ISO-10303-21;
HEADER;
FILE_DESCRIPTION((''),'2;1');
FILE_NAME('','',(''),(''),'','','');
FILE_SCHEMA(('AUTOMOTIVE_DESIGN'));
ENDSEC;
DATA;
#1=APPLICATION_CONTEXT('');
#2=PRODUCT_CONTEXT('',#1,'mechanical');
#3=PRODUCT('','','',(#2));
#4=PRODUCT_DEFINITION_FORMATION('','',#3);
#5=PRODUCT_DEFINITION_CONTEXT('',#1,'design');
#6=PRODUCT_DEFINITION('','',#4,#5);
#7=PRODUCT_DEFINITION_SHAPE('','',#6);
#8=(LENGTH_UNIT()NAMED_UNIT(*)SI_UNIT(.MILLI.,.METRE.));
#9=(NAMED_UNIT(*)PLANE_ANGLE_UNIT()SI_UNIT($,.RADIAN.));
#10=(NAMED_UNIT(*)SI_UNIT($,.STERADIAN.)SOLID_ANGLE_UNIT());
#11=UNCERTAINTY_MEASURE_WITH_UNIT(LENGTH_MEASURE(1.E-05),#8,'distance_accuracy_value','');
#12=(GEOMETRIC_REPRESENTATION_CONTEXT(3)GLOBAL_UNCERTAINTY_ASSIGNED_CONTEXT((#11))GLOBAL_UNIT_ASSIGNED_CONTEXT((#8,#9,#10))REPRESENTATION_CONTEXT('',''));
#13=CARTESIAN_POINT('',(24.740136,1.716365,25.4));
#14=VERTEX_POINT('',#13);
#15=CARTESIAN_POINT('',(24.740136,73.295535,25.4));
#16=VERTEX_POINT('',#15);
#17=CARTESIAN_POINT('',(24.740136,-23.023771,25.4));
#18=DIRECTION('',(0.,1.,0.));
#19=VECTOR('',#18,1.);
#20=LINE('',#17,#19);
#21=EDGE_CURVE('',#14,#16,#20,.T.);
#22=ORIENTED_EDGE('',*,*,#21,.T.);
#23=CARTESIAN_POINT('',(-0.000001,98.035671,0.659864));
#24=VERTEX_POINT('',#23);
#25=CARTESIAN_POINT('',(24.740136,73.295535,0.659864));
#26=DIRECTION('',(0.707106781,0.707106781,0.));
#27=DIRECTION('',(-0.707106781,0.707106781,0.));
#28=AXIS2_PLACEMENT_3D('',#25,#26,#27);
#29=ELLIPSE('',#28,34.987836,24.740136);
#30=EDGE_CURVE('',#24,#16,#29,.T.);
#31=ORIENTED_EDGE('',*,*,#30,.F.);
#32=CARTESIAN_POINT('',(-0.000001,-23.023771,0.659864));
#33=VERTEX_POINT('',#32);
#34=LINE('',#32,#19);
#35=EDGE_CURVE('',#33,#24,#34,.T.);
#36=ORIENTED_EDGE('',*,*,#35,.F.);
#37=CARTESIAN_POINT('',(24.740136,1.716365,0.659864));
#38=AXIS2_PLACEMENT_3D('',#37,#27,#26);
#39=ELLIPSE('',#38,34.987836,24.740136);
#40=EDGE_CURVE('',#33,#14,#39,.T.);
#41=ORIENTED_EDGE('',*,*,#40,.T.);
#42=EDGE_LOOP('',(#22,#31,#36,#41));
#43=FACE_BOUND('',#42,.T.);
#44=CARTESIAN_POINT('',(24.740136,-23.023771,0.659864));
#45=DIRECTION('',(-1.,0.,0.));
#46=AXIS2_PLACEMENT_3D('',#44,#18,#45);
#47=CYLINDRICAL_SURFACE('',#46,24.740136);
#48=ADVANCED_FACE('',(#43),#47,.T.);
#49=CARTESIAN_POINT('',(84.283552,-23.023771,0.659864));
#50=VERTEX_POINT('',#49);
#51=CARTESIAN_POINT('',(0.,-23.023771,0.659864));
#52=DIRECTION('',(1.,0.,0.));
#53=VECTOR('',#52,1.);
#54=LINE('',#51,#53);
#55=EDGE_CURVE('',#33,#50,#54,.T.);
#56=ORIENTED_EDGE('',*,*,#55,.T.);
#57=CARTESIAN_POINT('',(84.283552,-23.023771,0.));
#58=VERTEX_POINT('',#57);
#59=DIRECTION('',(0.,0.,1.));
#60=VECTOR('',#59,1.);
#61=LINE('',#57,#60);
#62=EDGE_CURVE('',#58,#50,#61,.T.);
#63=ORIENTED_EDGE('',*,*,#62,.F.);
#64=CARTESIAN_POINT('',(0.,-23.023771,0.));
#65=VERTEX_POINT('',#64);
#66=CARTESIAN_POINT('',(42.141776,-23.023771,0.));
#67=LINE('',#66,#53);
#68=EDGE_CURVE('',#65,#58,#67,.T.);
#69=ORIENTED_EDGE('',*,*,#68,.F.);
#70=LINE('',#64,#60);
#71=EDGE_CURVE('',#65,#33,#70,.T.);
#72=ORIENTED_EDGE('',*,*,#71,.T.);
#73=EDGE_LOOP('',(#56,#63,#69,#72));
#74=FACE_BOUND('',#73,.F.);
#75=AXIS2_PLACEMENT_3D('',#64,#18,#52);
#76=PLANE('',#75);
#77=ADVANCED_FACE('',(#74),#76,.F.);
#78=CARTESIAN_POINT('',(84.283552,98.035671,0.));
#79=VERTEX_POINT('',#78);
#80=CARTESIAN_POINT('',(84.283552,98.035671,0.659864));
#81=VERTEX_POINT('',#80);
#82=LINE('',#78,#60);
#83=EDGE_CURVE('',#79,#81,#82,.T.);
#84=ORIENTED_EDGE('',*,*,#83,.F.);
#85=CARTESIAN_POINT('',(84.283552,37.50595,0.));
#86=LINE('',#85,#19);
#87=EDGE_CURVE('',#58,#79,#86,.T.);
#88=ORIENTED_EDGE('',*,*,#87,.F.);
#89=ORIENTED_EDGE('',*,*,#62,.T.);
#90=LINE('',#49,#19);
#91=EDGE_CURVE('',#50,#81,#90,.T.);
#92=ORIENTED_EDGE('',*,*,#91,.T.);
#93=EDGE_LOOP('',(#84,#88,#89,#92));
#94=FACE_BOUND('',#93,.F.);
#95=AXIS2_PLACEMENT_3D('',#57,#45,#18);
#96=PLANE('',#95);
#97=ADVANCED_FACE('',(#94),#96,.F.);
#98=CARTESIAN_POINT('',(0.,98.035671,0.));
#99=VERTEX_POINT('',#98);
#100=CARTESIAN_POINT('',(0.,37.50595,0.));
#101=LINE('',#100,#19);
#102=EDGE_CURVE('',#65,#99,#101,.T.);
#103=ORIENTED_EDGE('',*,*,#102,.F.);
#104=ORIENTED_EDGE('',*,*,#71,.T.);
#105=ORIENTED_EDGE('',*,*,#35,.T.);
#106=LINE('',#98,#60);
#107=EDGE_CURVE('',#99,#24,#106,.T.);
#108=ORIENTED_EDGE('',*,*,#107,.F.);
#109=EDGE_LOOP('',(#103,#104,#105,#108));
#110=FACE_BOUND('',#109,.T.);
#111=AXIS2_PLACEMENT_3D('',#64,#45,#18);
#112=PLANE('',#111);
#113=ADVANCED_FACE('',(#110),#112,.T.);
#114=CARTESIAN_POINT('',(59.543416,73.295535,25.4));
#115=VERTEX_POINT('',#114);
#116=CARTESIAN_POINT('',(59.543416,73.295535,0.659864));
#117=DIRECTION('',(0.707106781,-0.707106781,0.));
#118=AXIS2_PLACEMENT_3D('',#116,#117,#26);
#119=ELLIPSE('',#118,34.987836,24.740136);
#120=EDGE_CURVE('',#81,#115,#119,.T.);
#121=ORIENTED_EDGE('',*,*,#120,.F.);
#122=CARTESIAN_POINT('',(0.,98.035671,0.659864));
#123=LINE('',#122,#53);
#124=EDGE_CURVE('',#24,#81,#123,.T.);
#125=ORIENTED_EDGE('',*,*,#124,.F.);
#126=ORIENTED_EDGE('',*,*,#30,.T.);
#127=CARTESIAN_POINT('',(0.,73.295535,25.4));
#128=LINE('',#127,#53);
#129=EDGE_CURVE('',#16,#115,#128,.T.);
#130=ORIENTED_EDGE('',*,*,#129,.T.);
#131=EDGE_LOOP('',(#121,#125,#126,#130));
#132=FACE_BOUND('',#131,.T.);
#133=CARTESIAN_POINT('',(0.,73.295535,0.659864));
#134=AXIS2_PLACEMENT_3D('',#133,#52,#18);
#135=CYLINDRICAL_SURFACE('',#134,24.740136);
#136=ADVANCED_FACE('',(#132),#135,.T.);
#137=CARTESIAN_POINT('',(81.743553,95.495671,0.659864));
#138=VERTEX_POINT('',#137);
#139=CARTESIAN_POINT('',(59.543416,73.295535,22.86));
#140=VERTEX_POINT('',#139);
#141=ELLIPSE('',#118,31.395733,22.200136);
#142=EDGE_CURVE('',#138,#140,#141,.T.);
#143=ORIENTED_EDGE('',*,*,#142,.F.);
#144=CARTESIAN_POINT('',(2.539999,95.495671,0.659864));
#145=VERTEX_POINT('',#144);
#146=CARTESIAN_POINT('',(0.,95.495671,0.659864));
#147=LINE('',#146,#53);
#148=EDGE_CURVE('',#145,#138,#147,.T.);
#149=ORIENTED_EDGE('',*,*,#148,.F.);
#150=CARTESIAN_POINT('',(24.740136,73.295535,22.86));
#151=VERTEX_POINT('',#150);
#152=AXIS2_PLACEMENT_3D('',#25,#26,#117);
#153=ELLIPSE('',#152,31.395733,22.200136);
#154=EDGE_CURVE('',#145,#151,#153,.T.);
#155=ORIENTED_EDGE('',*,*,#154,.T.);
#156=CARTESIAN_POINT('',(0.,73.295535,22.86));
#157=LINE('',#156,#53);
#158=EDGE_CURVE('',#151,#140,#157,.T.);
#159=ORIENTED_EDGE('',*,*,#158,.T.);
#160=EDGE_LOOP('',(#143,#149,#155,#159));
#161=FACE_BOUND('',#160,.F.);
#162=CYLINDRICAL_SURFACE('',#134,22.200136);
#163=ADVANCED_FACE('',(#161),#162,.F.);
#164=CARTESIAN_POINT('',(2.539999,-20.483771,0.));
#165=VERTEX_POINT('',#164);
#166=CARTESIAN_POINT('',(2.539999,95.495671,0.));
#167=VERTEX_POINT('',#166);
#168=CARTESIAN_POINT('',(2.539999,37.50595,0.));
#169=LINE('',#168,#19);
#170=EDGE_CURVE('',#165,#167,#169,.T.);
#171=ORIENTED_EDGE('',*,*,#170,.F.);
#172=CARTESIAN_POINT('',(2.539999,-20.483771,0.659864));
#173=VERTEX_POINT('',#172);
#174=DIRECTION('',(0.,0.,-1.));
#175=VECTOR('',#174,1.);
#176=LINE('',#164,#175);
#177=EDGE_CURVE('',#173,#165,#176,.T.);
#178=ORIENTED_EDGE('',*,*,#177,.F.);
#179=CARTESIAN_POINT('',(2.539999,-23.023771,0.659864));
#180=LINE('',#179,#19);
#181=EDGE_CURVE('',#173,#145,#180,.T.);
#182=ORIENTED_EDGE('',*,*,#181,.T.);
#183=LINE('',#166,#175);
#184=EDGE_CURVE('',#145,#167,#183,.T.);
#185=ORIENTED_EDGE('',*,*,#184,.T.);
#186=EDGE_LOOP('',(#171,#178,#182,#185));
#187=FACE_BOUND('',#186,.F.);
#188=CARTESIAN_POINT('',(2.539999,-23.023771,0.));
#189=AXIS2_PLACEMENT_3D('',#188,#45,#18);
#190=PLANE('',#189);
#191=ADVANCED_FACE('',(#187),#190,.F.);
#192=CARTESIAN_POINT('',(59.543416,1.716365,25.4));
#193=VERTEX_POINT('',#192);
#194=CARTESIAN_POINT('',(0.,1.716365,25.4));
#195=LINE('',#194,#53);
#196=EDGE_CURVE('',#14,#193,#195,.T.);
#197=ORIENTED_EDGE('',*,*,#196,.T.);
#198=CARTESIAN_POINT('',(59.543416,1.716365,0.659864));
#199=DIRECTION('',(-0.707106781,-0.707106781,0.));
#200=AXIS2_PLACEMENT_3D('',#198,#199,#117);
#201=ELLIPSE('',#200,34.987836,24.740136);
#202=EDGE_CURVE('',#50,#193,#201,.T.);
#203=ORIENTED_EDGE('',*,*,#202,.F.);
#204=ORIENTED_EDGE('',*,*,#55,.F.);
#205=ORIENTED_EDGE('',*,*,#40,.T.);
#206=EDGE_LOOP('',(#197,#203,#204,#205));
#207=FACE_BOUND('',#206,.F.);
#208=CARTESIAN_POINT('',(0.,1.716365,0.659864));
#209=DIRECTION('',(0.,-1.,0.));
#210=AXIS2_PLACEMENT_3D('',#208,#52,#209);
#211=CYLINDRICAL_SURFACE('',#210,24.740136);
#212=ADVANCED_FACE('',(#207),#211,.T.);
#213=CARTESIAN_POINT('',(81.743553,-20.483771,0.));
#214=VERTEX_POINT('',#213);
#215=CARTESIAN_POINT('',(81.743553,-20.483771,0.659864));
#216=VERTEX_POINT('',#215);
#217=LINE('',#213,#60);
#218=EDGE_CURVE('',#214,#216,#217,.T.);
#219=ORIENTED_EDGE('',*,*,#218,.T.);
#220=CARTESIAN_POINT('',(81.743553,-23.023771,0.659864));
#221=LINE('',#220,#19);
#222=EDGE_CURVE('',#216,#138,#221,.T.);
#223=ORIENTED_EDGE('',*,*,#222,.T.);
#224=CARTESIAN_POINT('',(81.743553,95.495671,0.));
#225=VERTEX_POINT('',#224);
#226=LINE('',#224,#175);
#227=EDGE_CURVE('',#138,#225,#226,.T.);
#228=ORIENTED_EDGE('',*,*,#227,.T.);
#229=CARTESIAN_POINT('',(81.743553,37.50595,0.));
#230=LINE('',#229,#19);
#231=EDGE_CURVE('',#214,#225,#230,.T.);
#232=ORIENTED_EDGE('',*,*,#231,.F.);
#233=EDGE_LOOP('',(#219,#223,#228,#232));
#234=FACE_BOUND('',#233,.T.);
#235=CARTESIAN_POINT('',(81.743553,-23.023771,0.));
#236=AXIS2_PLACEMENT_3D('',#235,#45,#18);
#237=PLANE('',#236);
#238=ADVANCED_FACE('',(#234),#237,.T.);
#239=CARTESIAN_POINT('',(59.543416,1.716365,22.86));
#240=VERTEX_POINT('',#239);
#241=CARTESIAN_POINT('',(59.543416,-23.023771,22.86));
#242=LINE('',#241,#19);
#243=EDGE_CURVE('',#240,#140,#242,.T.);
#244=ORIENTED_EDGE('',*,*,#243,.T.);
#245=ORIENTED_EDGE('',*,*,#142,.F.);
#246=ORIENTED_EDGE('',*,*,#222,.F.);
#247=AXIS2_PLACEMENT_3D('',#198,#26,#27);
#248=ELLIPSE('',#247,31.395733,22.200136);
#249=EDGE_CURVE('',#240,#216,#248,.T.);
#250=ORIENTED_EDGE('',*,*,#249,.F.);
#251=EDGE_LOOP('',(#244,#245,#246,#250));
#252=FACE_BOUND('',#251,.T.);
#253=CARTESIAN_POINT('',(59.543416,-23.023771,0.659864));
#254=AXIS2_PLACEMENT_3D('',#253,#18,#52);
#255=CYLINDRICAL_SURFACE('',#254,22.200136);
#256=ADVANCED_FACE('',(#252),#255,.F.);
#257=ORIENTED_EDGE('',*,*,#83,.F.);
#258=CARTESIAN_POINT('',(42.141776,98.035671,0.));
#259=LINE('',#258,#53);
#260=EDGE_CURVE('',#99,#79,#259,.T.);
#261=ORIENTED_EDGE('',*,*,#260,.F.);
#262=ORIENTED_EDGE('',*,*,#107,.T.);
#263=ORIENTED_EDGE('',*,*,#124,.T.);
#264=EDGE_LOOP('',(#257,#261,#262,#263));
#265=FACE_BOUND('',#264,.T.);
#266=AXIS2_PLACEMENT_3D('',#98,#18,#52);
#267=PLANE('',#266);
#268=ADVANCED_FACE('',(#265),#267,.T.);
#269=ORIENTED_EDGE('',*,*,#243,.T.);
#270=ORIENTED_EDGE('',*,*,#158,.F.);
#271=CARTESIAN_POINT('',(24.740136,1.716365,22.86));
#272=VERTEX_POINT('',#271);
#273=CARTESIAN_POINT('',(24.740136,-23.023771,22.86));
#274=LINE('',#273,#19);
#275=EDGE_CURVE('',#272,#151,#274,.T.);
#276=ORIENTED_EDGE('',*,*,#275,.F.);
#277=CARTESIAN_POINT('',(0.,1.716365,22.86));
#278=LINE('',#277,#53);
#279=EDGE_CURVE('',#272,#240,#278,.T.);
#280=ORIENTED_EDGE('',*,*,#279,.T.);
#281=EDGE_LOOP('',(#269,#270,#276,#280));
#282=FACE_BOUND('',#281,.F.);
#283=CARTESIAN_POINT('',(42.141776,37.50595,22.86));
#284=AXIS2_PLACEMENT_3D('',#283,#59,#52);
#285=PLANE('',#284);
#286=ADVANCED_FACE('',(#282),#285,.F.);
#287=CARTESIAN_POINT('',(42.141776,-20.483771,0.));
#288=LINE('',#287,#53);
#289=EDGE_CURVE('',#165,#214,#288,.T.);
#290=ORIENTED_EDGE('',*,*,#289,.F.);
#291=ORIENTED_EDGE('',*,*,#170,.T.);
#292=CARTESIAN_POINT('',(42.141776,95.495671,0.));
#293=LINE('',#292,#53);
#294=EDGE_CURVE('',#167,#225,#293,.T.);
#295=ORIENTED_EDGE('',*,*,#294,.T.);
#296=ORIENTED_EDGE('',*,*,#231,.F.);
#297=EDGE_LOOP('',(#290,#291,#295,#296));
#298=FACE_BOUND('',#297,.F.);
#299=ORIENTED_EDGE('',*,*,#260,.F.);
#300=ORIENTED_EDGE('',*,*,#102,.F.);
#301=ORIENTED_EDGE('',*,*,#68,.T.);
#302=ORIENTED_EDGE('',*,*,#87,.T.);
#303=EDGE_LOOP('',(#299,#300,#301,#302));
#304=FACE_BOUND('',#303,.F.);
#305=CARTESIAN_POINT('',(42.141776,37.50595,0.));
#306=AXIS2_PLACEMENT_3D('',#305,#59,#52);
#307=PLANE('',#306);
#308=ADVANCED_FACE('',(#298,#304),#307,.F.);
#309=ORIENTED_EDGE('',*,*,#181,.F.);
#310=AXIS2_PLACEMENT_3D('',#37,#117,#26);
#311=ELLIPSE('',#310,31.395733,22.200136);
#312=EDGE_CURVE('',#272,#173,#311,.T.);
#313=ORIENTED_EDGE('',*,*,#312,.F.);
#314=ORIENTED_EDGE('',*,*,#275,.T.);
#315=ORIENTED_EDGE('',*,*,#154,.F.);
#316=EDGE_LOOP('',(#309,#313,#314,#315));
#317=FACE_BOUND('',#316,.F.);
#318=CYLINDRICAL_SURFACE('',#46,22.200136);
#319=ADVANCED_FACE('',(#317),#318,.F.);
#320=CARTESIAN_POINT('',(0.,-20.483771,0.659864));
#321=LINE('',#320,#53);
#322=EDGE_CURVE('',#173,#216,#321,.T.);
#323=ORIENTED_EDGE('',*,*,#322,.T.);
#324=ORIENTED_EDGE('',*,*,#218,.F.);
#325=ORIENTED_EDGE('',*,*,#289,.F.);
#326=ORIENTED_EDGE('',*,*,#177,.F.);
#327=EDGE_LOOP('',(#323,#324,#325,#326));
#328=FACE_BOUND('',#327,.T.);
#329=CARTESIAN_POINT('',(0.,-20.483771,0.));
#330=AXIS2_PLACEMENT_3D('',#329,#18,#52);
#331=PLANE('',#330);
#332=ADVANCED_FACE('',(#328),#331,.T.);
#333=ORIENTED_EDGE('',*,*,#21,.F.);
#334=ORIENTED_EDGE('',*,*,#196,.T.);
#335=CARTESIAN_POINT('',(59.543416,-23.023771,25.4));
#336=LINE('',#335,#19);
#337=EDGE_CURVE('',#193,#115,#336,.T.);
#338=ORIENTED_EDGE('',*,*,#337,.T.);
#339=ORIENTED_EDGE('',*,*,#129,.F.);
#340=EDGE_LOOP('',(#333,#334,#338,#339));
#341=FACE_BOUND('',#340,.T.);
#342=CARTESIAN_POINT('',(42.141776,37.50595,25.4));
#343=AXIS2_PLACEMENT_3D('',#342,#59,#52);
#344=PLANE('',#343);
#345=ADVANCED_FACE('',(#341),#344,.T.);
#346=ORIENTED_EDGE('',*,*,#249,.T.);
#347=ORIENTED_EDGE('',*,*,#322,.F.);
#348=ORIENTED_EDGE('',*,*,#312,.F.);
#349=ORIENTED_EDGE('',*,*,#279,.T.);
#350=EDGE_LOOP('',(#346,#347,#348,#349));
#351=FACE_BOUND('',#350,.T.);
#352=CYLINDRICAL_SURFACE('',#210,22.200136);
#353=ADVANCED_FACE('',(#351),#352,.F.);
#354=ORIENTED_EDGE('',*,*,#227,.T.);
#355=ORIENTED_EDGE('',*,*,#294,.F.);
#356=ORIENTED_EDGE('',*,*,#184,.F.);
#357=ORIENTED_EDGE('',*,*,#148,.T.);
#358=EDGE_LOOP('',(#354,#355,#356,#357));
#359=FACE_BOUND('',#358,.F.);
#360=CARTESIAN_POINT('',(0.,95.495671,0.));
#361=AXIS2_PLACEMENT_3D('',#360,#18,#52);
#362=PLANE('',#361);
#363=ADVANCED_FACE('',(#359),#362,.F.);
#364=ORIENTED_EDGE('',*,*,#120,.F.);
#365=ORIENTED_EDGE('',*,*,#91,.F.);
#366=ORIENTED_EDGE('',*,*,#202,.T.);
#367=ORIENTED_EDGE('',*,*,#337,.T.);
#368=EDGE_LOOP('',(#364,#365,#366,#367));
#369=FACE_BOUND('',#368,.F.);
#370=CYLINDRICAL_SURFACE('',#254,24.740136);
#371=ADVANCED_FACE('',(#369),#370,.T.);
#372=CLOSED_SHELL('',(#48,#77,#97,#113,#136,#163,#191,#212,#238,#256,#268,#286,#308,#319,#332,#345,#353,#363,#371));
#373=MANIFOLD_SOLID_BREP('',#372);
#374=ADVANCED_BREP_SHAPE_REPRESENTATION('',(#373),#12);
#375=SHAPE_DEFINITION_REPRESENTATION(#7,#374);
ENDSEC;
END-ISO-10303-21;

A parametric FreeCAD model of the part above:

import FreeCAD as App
import Part
import Sketcher

V = App.Vector
Q = App.Units.Quantity


def edges_at(feature, points):
    """Names of the edges that pass closest to the given points."""
    edges = feature.Shape.Edges
    near = lambda p: min(range(len(edges)), key=lambda i: edges[i].distToShape(Part.Vertex(*p))[0])
    return sorted({f"Edge{near(p) + 1}" for p in points})


def faces_at(feature, points):
    """Names of the faces that lie closest to the given points."""
    faces = feature.Shape.Faces
    near = lambda p: min(range(len(faces)), key=lambda i: faces[i].distToShape(Part.Vertex(*p))[0])
    return sorted({f"Face{near(p) + 1}" for p in points})

doc = App.newDocument("Part")
params = doc.addObject("Spreadsheet::Sheet", "Params")
for row, (alias, value) in enumerate([
    ("pad1_length", "1 in"),
    ("fillet_radius", "24.740136 mm"),
    ("thickness_wall", "0.1 in"),
], start=1):
    params.set(f"A{row}", alias)
    params.set(f"B{row}", "=" + value)
    params.setAlias(f"B{row}", alias)

body = doc.addObject("PartDesign::Body", "Body")

# Sketch on XY plane
sketch1 = body.newObject("Sketcher::SketchObject", "Sketch")
sketch1.AttachmentSupport = (doc.getObject("XY_Plane"), [""])
sketch1.MapMode = "FlatFace"
sketch1.addGeometry([
    Part.LineSegment(V(0, 98, 0), V(0, -23, 0)),
    Part.LineSegment(V(0, -23, 0), V(84, -23, 0)),
    Part.LineSegment(V(84, -23, 0), V(84, 98, 0)),
    Part.LineSegment(V(84, 98, 0), V(0, 98, 0)),
], False)
sketch1.addConstraint([
    Sketcher.Constraint("Coincident", 0, 2, 1, 1),
    Sketcher.Constraint("Coincident", 1, 2, 2, 1),
    Sketcher.Constraint("Coincident", 2, 2, 3, 1),
    Sketcher.Constraint("Coincident", 3, 2, 0, 1),
    Sketcher.Constraint("Vertical", 0),
    Sketcher.Constraint("Horizontal", 1),
    Sketcher.Constraint("Vertical", 2),
    Sketcher.Constraint("Horizontal", 3),
    Sketcher.Constraint("PointOnObject", 0, 2, -2),
    Sketcher.Constraint("DistanceY", 0, 2, 0, 1, Q("121.059442 mm")),
    Sketcher.Constraint("DistanceX", 1, 1, 1, 2, Q("84.283553 mm")),
    Sketcher.Constraint("DistanceY", 0, 2, -1, 1, Q("23.023771 mm")),
])
pad1 = body.newObject("PartDesign::Pad", "Pad")
pad1.Profile = sketch1
pad1.setExpression("Length", "Params.pad1_length")
doc.recompute()

fillet = body.newObject("PartDesign::Fillet", "Fillet")
fillet.Base = (pad1, edges_at(pad1, [
    (0, 37.506, 25.4),
    (42.142, -23.024, 25.4),
    (84.284, 37.506, 25.4),
    (42.142, 98.036, 25.4),
]))
fillet.setExpression("Radius", "Params.fillet_radius")
doc.recompute()

thickness = body.newObject("PartDesign::Thickness", "Thickness")
thickness.Base = (fillet, faces_at(fillet, [(42.142, 37.506, 0)]))
thickness.setExpression("Value", "Params.thickness_wall")
thickness.Reversed = True
thickness.Join = "Arc"

doc.recompute()
